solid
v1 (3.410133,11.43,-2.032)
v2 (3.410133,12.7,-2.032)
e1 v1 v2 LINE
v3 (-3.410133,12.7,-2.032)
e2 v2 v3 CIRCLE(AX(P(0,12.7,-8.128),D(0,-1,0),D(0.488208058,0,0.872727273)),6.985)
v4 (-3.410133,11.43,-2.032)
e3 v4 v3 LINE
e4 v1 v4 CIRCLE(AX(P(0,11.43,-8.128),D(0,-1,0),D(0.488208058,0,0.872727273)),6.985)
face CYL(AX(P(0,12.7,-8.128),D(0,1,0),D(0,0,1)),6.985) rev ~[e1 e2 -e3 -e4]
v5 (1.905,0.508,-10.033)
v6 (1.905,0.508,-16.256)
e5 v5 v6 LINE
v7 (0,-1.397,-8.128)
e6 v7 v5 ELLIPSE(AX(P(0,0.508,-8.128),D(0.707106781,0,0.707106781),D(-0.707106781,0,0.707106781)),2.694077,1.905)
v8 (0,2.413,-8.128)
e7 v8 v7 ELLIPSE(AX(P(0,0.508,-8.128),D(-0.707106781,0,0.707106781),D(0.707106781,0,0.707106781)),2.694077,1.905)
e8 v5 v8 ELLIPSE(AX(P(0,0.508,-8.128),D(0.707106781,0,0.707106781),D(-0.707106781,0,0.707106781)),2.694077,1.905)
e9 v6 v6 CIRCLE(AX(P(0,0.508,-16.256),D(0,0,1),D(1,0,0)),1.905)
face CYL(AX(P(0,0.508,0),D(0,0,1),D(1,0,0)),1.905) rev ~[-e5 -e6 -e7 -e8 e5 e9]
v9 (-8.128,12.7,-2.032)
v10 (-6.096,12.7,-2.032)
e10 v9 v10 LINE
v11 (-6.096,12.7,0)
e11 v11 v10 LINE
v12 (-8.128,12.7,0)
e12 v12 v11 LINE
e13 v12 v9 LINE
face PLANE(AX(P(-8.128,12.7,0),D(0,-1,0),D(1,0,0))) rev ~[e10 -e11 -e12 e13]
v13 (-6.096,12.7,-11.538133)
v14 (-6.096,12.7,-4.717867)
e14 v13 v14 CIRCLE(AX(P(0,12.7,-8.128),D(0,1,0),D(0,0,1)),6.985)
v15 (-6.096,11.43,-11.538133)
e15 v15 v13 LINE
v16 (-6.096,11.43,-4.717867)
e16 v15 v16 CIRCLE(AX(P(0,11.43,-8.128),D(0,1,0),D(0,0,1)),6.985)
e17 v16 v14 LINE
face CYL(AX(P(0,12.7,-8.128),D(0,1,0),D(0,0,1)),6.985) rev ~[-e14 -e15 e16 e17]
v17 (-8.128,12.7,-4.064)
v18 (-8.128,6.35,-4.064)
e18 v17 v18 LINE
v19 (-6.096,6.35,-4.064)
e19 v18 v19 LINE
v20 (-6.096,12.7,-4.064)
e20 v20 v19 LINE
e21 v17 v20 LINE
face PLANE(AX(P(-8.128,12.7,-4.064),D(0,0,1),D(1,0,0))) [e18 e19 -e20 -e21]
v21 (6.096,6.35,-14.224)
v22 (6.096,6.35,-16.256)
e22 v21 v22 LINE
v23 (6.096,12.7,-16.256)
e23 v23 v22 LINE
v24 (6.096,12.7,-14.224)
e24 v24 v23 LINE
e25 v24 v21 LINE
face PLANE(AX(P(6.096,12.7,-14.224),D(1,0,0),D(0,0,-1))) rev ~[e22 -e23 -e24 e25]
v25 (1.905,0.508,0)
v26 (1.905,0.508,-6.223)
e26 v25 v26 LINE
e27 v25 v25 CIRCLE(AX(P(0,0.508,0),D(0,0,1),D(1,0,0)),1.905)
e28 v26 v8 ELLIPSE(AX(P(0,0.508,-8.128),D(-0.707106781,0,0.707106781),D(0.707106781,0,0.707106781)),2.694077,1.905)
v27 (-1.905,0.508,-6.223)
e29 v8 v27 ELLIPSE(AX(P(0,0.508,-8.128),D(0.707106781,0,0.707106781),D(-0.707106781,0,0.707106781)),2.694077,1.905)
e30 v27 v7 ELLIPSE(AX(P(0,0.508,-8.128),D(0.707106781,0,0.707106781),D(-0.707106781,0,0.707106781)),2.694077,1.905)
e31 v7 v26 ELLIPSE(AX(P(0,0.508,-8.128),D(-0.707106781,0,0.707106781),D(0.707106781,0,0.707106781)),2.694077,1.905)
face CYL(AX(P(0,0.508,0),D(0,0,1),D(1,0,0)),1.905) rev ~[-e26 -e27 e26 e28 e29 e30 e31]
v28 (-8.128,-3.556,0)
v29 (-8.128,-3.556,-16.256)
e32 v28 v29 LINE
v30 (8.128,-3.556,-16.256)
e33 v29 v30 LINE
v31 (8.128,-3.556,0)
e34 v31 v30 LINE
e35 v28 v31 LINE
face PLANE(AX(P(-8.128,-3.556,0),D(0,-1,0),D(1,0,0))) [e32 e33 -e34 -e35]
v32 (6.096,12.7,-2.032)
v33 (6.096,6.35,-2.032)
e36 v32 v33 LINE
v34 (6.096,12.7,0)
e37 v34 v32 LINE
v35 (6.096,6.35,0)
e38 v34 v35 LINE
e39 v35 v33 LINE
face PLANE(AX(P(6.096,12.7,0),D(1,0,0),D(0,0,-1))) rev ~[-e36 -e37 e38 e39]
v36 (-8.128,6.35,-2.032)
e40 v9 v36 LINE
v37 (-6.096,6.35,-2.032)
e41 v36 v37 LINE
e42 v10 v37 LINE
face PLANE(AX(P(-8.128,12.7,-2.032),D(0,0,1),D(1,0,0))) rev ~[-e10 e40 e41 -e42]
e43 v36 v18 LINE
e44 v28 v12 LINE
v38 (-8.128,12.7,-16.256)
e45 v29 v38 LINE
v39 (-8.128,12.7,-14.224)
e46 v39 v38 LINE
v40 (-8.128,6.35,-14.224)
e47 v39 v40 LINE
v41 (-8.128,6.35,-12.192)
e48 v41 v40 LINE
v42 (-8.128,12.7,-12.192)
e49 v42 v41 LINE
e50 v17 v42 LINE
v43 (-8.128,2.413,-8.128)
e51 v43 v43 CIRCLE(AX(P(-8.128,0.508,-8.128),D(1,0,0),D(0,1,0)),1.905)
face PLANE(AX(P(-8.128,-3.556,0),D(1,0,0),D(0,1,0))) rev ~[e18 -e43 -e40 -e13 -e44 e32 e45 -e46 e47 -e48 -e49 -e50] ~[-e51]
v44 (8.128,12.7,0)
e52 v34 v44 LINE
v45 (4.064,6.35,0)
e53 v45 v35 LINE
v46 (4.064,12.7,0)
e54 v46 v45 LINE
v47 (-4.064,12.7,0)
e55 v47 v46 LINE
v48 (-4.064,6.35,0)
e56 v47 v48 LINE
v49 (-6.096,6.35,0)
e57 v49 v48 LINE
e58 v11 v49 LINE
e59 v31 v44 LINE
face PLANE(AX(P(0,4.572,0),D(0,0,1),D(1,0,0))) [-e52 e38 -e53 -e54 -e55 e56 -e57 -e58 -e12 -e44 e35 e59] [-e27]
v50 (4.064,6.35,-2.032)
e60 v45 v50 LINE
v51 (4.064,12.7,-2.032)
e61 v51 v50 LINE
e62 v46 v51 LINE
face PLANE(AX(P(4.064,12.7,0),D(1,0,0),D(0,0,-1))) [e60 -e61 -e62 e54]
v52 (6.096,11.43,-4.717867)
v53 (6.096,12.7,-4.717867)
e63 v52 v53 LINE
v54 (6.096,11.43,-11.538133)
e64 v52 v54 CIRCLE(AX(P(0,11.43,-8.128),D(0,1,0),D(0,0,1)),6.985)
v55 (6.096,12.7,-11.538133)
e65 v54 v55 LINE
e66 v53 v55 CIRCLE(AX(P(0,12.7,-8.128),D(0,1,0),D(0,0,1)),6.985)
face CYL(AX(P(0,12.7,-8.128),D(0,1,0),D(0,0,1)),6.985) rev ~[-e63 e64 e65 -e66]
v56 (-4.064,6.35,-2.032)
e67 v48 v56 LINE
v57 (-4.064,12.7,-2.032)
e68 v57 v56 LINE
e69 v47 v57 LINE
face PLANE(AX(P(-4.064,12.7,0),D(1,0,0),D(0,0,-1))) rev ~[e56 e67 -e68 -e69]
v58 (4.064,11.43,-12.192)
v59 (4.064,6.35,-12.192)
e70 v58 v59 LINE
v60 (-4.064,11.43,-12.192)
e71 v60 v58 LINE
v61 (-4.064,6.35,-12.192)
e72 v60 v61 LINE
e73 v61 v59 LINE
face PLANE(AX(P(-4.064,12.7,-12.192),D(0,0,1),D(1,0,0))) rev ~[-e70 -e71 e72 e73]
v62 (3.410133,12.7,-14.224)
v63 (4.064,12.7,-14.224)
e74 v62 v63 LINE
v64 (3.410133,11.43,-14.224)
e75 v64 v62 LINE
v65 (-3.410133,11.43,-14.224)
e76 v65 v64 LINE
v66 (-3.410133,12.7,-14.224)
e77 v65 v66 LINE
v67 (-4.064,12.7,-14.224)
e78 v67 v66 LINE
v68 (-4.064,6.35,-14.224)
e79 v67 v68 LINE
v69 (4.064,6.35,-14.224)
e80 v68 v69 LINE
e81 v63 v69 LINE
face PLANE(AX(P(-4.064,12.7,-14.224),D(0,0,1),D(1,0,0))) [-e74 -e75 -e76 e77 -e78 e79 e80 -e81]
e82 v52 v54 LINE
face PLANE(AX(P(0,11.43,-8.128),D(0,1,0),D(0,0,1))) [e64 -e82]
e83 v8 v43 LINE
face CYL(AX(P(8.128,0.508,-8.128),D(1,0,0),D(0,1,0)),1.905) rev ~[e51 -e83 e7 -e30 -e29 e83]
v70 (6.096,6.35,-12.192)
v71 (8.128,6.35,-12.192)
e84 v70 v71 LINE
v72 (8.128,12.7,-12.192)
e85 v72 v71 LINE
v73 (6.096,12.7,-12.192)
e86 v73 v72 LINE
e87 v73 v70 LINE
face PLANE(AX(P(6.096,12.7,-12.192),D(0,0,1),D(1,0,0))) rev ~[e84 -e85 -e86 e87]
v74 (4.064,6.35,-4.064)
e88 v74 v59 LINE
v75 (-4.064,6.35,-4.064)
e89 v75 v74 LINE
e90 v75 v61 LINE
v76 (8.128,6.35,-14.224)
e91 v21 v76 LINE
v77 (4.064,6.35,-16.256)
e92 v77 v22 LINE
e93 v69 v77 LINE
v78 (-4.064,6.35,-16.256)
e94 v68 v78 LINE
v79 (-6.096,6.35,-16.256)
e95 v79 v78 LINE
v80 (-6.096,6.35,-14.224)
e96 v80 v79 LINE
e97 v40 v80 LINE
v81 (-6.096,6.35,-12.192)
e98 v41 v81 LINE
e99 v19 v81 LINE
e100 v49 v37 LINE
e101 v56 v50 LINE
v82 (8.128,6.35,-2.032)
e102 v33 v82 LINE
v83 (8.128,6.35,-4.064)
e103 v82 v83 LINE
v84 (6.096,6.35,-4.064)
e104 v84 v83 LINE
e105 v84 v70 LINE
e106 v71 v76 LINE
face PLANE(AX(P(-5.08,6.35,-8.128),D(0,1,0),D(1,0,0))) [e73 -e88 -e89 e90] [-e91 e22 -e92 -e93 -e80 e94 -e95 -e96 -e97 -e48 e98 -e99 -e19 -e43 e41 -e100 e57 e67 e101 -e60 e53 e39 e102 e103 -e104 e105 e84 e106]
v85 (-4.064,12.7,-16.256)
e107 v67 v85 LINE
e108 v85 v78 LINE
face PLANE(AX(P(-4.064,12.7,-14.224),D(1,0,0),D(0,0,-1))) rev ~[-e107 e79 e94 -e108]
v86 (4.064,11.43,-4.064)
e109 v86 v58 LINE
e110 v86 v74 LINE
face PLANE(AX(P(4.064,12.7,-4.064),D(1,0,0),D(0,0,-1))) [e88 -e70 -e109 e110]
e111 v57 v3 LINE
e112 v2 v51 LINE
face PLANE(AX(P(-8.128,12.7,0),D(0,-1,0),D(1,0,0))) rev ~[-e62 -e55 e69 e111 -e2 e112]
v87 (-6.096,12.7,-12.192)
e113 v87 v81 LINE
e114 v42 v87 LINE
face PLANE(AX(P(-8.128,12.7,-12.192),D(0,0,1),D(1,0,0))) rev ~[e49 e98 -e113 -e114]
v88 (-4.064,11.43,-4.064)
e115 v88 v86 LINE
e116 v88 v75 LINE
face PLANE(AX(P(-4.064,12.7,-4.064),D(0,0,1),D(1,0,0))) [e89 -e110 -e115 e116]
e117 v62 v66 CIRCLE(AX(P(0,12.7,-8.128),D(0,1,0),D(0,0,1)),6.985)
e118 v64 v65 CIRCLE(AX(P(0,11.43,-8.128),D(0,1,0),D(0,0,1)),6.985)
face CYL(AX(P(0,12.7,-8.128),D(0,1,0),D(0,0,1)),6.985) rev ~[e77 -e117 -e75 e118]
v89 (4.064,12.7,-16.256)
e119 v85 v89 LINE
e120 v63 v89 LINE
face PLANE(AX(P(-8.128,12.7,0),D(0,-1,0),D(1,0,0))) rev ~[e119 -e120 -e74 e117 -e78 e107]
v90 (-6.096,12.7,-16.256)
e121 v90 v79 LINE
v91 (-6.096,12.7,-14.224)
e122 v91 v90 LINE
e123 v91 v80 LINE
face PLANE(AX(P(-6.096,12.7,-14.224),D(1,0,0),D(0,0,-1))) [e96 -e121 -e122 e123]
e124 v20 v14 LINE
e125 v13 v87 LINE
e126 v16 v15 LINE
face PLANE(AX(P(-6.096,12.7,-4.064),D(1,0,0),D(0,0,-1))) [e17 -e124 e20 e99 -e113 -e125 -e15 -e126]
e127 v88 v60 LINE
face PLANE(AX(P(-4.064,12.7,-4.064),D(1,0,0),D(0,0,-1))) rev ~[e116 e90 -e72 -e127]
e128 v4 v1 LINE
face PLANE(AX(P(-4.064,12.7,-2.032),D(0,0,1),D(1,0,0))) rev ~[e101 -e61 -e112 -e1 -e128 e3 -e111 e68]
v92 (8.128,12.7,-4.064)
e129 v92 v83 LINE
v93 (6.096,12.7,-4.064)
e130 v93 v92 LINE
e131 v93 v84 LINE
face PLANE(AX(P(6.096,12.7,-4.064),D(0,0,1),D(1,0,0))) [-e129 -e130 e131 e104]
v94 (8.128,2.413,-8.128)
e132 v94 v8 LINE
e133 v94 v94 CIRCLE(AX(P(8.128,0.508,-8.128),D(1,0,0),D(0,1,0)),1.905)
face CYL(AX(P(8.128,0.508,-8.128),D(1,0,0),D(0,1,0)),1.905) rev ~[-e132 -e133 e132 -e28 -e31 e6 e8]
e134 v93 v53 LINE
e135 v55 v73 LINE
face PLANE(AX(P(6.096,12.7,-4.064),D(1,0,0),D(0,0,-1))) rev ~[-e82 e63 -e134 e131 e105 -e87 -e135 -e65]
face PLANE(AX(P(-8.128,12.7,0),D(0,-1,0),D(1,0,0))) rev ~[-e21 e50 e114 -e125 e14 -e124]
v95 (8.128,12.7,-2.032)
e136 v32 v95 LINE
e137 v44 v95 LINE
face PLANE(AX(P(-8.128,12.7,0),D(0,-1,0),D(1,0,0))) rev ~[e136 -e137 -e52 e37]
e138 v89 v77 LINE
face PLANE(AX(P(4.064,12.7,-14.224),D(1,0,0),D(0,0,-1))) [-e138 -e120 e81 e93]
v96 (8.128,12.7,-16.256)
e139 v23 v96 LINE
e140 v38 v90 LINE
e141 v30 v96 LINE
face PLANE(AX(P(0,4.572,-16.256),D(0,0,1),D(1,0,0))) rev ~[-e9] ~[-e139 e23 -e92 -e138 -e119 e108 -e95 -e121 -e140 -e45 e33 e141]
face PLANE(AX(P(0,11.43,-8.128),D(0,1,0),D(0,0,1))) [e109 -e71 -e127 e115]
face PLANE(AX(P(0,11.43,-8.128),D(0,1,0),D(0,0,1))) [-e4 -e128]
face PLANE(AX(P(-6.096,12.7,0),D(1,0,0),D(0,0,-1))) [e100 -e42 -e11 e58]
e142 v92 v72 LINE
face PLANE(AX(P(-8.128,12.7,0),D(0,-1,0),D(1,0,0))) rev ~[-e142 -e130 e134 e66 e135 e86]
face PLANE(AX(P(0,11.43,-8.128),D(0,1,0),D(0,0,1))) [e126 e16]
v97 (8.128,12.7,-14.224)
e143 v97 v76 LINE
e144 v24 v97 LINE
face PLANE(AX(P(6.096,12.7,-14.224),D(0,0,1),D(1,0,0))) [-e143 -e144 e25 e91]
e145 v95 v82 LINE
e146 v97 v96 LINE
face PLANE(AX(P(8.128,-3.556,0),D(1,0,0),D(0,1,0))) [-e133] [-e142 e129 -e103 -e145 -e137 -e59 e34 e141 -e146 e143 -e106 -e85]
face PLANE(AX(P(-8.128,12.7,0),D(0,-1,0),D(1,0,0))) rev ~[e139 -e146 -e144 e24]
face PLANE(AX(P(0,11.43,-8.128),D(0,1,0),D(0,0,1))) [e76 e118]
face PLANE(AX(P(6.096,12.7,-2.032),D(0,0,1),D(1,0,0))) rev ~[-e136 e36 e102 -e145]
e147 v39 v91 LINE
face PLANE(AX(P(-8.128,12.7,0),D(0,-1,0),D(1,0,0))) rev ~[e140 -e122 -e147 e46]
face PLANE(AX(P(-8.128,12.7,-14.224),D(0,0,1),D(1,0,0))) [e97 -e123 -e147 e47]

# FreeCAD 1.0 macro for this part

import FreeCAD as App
import Part
import Sketcher
from FreeCAD import Vector
Q = App.Units.Quantity


def add_polygon(sketch, points):
    """Adds a closed chain of lines whose ends are joined by coincident constraints."""
    first, n = sketch.GeometryCount, len(points)
    for a, b in zip(points, points[1:] + points[:1]):
        sketch.addGeometry(Part.LineSegment(App.Vector(*a, 0), App.Vector(*b, 0)), False)
    for i in range(n):
        sketch.addConstraint(Sketcher.Constraint("Coincident", first + i, 2, first + (i + 1) % n, 1))

doc = App.newDocument("Part")
params = doc.addObject("Spreadsheet::Sheet", "Params")
for row, (alias, value) in enumerate([
    ("sketch1_width", "0.64 in"),
    ("pad1_length", "0.64 in"),
    ("sketch2_diameter", "0.55 in"),
    ("pocket1_length", "0.05 in"),
    ("sketch3_width", "0.08 in"),
    ("sketch3_width2", "0.32 in"),
    ("pocket2_length", "0.25 in"),
    ("sketch4_diameter", "0.15 in"),
    ("sketch5_diameter", "0.15 in"),
], start=1):
    params.set(f"A{row}", alias)
    params.set(f"B{row}", "=" + value)
    params.setAlias(f"B{row}", alias)

body = doc.addObject("PartDesign::Body", "Body")

# Sketch on XY plane
sketch1 = body.newObject("Sketcher::SketchObject", "Sketch")
sketch1.AttachmentSupport = (doc.getObject("XY_Plane"), [""])
sketch1.MapMode = "FlatFace"
add_polygon(sketch1, [(-8, 13), (-8, -4), (8, -4), (8, 13)])  # lines 0-3
sketch1.addConstraint([
    Sketcher.Constraint("Vertical", 0),
    Sketcher.Constraint("Horizontal", 1),
    Sketcher.Constraint("Vertical", 2),
    Sketcher.Constraint("Horizontal", 3),
    Sketcher.Constraint("Equal", 3, 0),
    Sketcher.Constraint("DistanceX", 1, 1, 1, 2, Q("0.64 in")),
    Sketcher.Constraint("DistanceY", -1, 1, 2, 2, Q("0.5 in")),
    Sketcher.Constraint("DistanceX", 0, 2, -1, 1, Q("0.32 in")),
])
sketch1.setExpression("Constraints[9]", "Params.sketch1_width")
pad1 = body.newObject("PartDesign::Pad", "Pad")
pad1.Profile = sketch1
pad1.setExpression("Length", "Params.pad1_length")
pad1.Reversed = True

# Sketch on XZ plane
sketch2 = body.newObject("Sketcher::SketchObject", "Sketch001")
sketch2.AttachmentSupport = (doc.getObject("XZ_Plane"), [""])
sketch2.MapMode = "FlatFace"
sketch2.AttachmentOffset = App.Placement(Vector(0, 0, -0.5 * 25.4), App.Rotation())
sketch2.addGeometry(Part.Circle(Vector(0, -8, 0), Vector(0, 0, 1), 7), False)
sketch2.addConstraint([
    Sketcher.Constraint("PointOnObject", 0, 3, -2),
    Sketcher.Constraint("Diameter", 0, Q("0.55 in")),
    Sketcher.Constraint("DistanceY", 0, 3, -1, 1, Q("0.32 in")),
])
sketch2.setExpression("Constraints[1]", "Params.sketch2_diameter")
pocket1 = body.newObject("PartDesign::Pocket", "Pocket")
pocket1.Profile = sketch2
pocket1.setExpression("Length", "Params.pocket1_length")
pocket1.Reversed = True

# Sketch on XZ plane
sketch3 = body.newObject("Sketcher::SketchObject", "Sketch002")
sketch3.AttachmentSupport = (doc.getObject("XZ_Plane"), [""])
sketch3.MapMode = "FlatFace"
sketch3.AttachmentOffset = App.Placement(Vector(0, 0, -0.5 * 25.4), App.Rotation())
add_polygon(sketch3, [(-6.1, -2), (-6.1, 0), (-4.1, 0), (-4.1, -2), (4.1, -2), (4.1, 0), (6.1, 0), (6.1, -2), (8.1, -2), (8.1, -4.1), (6.1, -4.1), (6.1, -12.2), (8.1, -12.2), (8.1, -14.2), (6.1, -14.2), (6.1, -16.3), (4.1, -16.3), (4.1, -14.2), (-4.1, -14.2), (-4.1, -16.3), (-6.1, -16.3), (-6.1, -14.2), (-8.1, -14.2), (-8.1, -12.2), (-6.1, -12.2), (-6.1, -4.1), (-8.1, -4.1), (-8.1, -2)])  # lines 0-27
add_polygon(sketch3, [(4.1, -12.2), (4.1, -4.1), (-4.1, -4.1), (-4.1, -12.2)])  # lines 28-31
sketch3.addConstraint([
    Sketcher.Constraint("Vertical", 0),
    Sketcher.Constraint("Horizontal", 1),
    Sketcher.Constraint("Vertical", 2),
    Sketcher.Constraint("Horizontal", 3),
    Sketcher.Constraint("Vertical", 4),
    Sketcher.Constraint("Horizontal", 5),
    Sketcher.Constraint("Vertical", 6),
    Sketcher.Constraint("Horizontal", 7),
    Sketcher.Constraint("Vertical", 8),
    Sketcher.Constraint("Horizontal", 9),
    Sketcher.Constraint("Vertical", 10),
    Sketcher.Constraint("Horizontal", 11),
    Sketcher.Constraint("Vertical", 12),
    Sketcher.Constraint("Horizontal", 13),
    Sketcher.Constraint("Vertical", 14),
    Sketcher.Constraint("Horizontal", 15),
    Sketcher.Constraint("Vertical", 16),
    Sketcher.Constraint("Horizontal", 17),
    Sketcher.Constraint("Vertical", 18),
    Sketcher.Constraint("Horizontal", 19),
    Sketcher.Constraint("Vertical", 20),
    Sketcher.Constraint("Horizontal", 21),
    Sketcher.Constraint("Vertical", 22),
    Sketcher.Constraint("Horizontal", 23),
    Sketcher.Constraint("Vertical", 24),
    Sketcher.Constraint("Horizontal", 25),
    Sketcher.Constraint("Vertical", 26),
    Sketcher.Constraint("Horizontal", 27),
    Sketcher.Constraint("Vertical", 28),
    Sketcher.Constraint("Horizontal", 29),
    Sketcher.Constraint("Vertical", 30),
    Sketcher.Constraint("Horizontal", 31),
    Sketcher.Constraint("Symmetric", 1, 2, 4, 2, -1, 1),
    Sketcher.Constraint("Symmetric", 0, 2, 5, 2, -2),
    Sketcher.Constraint("Symmetric", 15, 2, 18, 2, -2),
    Sketcher.Constraint("Symmetric", 13, 2, 20, 2, -2),
    Sketcher.Constraint("Symmetric", 11, 2, 22, 2, -2),
    Sketcher.Constraint("Symmetric", 9, 2, 24, 2, -2),
    Sketcher.Constraint("Symmetric", 7, 2, 26, 2, -2),
    Sketcher.Constraint("Horizontal", 3, 2, 6, 2),
    Sketcher.Constraint("Horizontal", 13, 2, 16, 2),
    Sketcher.Constraint("Horizontal", 25, 2, 28, 2),
    Sketcher.Constraint("Horizontal", 23, 2, 30, 2),
    Sketcher.Constraint("Vertical", 6, 2, 9, 2),
    Sketcher.Constraint("Vertical", 8, 2, 11, 2),
    Sketcher.Constraint("Vertical", 10, 2, 13, 2),
    Sketcher.Constraint("Vertical", 4, 2, 15, 2),
    Sketcher.Constraint("Vertical", 16, 2, 28, 2),
    Sketcher.Constraint("Vertical", 18, 2, 29, 2),
    Sketcher.Constraint("Equal", 5, 7),
    Sketcher.Constraint("Equal", 27, 0),
    Sketcher.Constraint("Equal", 6, 8),
    Sketcher.Constraint("Equal", 31, 10),
    Sketcher.Constraint("Equal", 8, 12),
    Sketcher.Constraint("Equal", 12, 14),
    Sketcher.Constraint("DistanceX", 1, 1, 1, 2, Q("0.08 in")),
    Sketcher.Constraint("DistanceX", 3, 1, 3, 2, Q("0.32 in")),
])
sketch3.setExpression("Constraints[87]", "Params.sketch3_width")
sketch3.setExpression("Constraints[88]", "Params.sketch3_width2")
pocket2 = body.newObject("PartDesign::Pocket", "Pocket001")
pocket2.Profile = sketch3
pocket2.setExpression("Length", "Params.pocket2_length")
pocket2.Reversed = True

# Sketch on XY plane
sketch4 = body.newObject("Sketcher::SketchObject", "Sketch003")
sketch4.AttachmentSupport = (doc.getObject("XY_Plane"), [""])
sketch4.MapMode = "FlatFace"
sketch4.addGeometry(Part.Circle(Vector(0, 0.5, 0), Vector(0, 0, 1), 1.9), False)
sketch4.addConstraint([
    Sketcher.Constraint("PointOnObject", 0, 3, -2),
    Sketcher.Constraint("Diameter", 0, Q("0.15 in")),
    Sketcher.Constraint("DistanceY", -1, 1, 0, 3, Q("0.02 in")),
])
sketch4.setExpression("Constraints[1]", "Params.sketch4_diameter")
pocket3 = body.newObject("PartDesign::Pocket", "Pocket002")
pocket3.Profile = sketch4
pocket3.Type = "ThroughAll"

# Sketch on YZ plane
sketch5 = body.newObject("Sketcher::SketchObject", "Sketch004")
sketch5.AttachmentSupport = (doc.getObject("YZ_Plane"), [""])
sketch5.MapMode = "FlatFace"
sketch5.AttachmentOffset = App.Placement(Vector(0, 0, 0.32 * 25.4), App.Rotation())
sketch5.addGeometry(Part.Circle(Vector(0.5, -8.1, 0), Vector(0, 0, 1), 1.9), False)
sketch5.addConstraint([
    Sketcher.Constraint("Diameter", 0, Q("0.15 in")),
    Sketcher.Constraint("DistanceX", -1, 1, 0, 3, Q("0.02 in")),
    Sketcher.Constraint("DistanceY", 0, 3, -1, 1, Q("0.32 in")),
])
sketch5.setExpression("Constraints[0]", "Params.sketch5_diameter")
pocket4 = body.newObject("PartDesign::Pocket", "Pocket003")
pocket4.Profile = sketch5
pocket4.Type = "ThroughAll"

doc.recompute()
